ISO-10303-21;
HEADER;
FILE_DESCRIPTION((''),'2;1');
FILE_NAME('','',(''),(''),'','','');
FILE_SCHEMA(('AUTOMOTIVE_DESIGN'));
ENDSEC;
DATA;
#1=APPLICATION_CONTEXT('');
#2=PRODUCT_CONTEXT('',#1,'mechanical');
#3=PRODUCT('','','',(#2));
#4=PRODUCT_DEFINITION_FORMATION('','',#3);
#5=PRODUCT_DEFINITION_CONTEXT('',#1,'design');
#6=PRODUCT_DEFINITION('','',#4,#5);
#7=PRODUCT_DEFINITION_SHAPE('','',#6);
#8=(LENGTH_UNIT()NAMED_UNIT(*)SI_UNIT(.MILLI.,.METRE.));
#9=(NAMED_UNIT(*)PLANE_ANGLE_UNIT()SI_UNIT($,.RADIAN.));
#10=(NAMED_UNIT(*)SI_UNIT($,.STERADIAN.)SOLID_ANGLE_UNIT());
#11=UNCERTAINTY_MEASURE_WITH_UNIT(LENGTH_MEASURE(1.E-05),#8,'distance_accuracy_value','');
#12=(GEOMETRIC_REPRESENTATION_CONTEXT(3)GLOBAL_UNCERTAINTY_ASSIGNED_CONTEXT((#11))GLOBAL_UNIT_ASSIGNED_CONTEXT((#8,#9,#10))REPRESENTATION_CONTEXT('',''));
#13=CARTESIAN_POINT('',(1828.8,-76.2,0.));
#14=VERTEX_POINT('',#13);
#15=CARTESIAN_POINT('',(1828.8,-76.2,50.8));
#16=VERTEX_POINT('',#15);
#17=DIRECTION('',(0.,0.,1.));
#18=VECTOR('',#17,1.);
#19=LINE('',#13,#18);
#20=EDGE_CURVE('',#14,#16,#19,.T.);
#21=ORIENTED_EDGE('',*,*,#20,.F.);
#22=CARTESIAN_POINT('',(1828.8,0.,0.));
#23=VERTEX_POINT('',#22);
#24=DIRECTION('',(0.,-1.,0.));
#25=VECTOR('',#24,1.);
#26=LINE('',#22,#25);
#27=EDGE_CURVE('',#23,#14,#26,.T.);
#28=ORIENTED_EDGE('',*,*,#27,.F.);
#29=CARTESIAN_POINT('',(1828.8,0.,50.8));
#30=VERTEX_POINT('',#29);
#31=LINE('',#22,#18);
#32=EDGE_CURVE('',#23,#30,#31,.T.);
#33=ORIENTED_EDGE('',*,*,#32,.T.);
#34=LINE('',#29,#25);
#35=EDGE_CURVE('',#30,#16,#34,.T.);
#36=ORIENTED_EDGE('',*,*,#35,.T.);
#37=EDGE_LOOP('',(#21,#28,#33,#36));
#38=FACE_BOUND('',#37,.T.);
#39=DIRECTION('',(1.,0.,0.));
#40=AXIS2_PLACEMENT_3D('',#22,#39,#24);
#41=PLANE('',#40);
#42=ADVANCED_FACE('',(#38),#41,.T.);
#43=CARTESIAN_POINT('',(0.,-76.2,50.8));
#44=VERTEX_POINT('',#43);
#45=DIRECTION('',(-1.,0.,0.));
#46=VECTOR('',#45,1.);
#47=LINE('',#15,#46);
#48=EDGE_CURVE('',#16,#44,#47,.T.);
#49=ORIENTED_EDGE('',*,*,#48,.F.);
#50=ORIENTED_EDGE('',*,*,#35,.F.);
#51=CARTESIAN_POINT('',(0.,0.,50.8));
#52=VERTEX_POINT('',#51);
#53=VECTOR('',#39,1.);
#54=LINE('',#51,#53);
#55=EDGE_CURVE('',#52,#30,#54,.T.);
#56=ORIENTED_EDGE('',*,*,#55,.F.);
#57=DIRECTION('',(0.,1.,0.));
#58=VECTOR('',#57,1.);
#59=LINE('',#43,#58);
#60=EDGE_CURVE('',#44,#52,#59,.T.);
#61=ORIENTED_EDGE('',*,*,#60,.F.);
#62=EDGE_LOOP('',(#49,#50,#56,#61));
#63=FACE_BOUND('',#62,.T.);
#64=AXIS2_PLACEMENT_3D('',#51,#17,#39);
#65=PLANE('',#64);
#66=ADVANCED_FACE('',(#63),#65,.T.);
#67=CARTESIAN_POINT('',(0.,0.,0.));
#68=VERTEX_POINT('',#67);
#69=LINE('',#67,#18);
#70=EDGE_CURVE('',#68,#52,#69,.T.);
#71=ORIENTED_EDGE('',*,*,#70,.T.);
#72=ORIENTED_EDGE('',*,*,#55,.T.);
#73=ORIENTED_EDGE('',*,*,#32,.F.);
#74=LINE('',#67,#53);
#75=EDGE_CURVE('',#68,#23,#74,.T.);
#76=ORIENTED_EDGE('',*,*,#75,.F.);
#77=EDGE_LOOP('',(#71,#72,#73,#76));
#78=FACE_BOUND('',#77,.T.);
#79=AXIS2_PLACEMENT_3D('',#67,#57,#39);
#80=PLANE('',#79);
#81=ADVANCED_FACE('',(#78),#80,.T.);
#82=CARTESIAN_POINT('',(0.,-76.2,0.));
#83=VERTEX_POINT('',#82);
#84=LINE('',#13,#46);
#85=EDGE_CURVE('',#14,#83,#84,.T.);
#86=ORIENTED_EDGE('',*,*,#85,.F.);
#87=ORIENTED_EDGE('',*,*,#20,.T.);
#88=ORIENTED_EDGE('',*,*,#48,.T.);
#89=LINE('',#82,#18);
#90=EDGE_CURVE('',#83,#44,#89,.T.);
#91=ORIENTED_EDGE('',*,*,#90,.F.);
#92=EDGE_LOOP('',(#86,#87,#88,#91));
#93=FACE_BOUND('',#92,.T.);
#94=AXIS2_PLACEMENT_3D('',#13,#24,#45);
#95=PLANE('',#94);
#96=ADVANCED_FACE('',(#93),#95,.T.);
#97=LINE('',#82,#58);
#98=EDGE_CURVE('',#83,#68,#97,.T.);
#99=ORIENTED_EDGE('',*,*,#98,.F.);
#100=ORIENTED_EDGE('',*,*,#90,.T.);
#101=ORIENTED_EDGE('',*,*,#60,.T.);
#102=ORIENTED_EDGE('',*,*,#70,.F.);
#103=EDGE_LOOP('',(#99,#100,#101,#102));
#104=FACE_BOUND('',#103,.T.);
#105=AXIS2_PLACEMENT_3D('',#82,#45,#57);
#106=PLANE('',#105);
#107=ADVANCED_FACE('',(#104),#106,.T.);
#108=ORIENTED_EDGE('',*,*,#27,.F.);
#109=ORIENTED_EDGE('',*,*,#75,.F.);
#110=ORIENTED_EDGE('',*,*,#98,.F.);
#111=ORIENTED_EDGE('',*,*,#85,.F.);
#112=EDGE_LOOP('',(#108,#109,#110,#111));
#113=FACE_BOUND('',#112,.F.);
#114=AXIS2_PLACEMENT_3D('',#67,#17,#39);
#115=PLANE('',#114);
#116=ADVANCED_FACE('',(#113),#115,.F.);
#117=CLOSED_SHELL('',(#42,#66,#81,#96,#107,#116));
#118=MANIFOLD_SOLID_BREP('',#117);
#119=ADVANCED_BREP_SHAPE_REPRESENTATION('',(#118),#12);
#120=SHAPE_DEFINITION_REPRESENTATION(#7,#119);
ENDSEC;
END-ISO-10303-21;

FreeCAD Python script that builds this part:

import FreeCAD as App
import Part
import Sketcher
Q = App.Units.Quantity


def add_polygon(sketch, points):
    """Adds a closed chain of lines whose ends are joined by coincident constraints."""
    first, n = sketch.GeometryCount, len(points)
    for a, b in zip(points, points[1:] + points[:1]):
        sketch.addGeometry(Part.LineSegment(App.Vector(*a, 0), App.Vector(*b, 0)), False)
    for i in range(n):
        sketch.addConstraint(Sketcher.Constraint("Coincident", first + i, 2, first + (i + 1) % n, 1))

doc = App.newDocument("Part")
body = doc.addObject("PartDesign::Body", "Body")

sketch1 = doc.addObject("Sketcher::SketchObject", "Sketch")
body.addObject(sketch1)
sketch1.AttachmentSupport = (doc.XY_Plane, [""])
sketch1.MapMode = "FlatFace"
add_polygon(sketch1, [(1829, 0), (0, 0), (0, -76), (1829, -76)])
sketch1.addConstraint([
    Sketcher.Constraint("Horizontal", 0),
    Sketcher.Constraint("Vertical", 1),
    Sketcher.Constraint("Horizontal", 2),
    Sketcher.Constraint("Vertical", 3),
    Sketcher.Constraint("Coincident", 0, 2, -1, 1),
    Sketcher.Constraint("DistanceX", 0, 2, 0, 1, Q("72 in")),
    Sketcher.Constraint("DistanceY", 1, 2, 1, 1, Q("3 in")),
])
pad1 = doc.addObject("PartDesign::Pad", "Pad")
body.addObject(pad1)
pad1.Profile = sketch1
pad1.Length = Q("2 in")

doc.recompute()
